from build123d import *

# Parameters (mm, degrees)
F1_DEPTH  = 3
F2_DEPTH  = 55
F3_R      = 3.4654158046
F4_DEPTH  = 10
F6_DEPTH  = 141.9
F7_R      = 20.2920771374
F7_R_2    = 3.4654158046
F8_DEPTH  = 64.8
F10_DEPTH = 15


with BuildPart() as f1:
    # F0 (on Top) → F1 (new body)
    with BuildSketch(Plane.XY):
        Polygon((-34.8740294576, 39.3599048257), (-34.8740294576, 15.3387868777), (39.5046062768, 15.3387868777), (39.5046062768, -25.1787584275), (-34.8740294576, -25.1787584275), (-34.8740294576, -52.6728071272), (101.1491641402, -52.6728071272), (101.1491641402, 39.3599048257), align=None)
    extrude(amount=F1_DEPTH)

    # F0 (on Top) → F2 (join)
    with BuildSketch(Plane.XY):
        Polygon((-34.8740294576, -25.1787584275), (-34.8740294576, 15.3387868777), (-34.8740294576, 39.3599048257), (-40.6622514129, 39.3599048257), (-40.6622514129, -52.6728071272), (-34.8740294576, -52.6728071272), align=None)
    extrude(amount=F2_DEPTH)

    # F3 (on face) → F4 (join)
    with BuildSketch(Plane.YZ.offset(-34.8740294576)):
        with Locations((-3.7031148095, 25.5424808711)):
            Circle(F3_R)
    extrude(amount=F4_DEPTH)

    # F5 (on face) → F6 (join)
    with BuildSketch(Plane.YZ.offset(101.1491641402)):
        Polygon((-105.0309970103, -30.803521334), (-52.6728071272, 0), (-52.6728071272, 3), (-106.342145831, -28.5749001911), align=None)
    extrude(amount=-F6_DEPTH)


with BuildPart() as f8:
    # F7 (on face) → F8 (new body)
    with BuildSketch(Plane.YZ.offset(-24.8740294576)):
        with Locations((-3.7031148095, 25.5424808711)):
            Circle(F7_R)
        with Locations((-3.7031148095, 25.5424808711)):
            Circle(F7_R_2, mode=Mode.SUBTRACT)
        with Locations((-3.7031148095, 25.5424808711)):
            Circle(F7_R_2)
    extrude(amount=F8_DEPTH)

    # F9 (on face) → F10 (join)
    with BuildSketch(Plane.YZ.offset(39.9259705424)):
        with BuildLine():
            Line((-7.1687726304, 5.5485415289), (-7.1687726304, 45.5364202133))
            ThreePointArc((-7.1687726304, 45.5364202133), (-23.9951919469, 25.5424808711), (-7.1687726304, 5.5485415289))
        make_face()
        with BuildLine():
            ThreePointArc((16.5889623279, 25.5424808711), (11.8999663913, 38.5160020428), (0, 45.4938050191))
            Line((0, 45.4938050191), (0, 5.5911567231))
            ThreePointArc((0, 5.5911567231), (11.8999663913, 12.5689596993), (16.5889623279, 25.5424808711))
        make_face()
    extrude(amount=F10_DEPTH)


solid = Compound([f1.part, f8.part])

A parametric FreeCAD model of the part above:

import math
import FreeCAD as App
import Part
import Sketcher
Q = App.Units.Quantity


def add_polygon(sketch, points):
    """Adds a closed chain of lines whose ends are joined by coincident constraints."""
    first, n = sketch.GeometryCount, len(points)
    for a, b in zip(points, points[1:] + points[:1]):
        sketch.addGeometry(Part.LineSegment(App.Vector(*a, 0), App.Vector(*b, 0)), False)
    for i in range(n):
        sketch.addConstraint(Sketcher.Constraint("Coincident", first + i, 2, first + (i + 1) % n, 1))

doc = App.newDocument("Part")
params = doc.addObject("Spreadsheet::Sheet", "Params")
for row, (alias, value) in enumerate([
    ("pad1_length", "3 mm"),
    ("pad2_length", "55 mm"),
    ("pad3_length", "10 mm"),
    ("sketch4_height", "3 mm"),
    ("pad4_length", "141.9 mm"),
    ("pad5_length", "64.8 mm"),
    ("pad6_length", "15 mm"),
], start=1):
    params.set(f"A{row}", alias)
    params.set(f"B{row}", "=" + value)
    params.setAlias(f"B{row}", alias)

body = doc.addObject("PartDesign::Body", "Body")

sketch1 = doc.addObject("Sketcher::SketchObject", "Sketch")
body.addObject(sketch1)
sketch1.AttachmentSupport = (doc.XY_Plane, [""])
sketch1.MapMode = "FlatFace"
add_polygon(sketch1, [(-35, 39), (-35, 15), (40, 15), (40, -25), (-35, -25), (-35, -53), (101, -53), (101, 39)])
sketch1.addConstraint([
    Sketcher.Constraint("Vertical", 0),
    Sketcher.Constraint("Horizontal", 1),
    Sketcher.Constraint("Vertical", 2),
    Sketcher.Constraint("Horizontal", 3),
    Sketcher.Constraint("Vertical", 4),
    Sketcher.Constraint("Horizontal", 5),
    Sketcher.Constraint("Vertical", 6),
    Sketcher.Constraint("Horizontal", 7),
    Sketcher.Constraint("Vertical", 0, 2, 3, 2),
    Sketcher.Constraint("DistanceY", 4, 2, 4, 1, Q("27.494049 mm")),
    Sketcher.Constraint("DistanceY", 6, 1, 6, 2, Q("92.032712 mm")),
    Sketcher.Constraint("DistanceX", 1, 1, 1, 2, Q("74.378636 mm")),
    Sketcher.Constraint("DistanceX", 5, 1, 5, 2, Q("136.023194 mm")),
    Sketcher.Constraint("DistanceY", 0, 2, 0, 1, Q("24.021118 mm")),
    Sketcher.Constraint("DistanceX", 0, 2, -1, 1, Q("34.874029 mm")),
    Sketcher.Constraint("DistanceY", 2, 2, -1, 1, Q("25.178758 mm")),
])
pad1 = doc.addObject("PartDesign::Pad", "Pad")
body.addObject(pad1)
pad1.Profile = sketch1
pad1.setExpression("Length", "Params.pad1_length")

sketch2 = doc.addObject("Sketcher::SketchObject", "Sketch001")
body.addObject(sketch2)
sketch2.AttachmentSupport = (doc.XY_Plane, [""])
sketch2.MapMode = "FlatFace"
add_polygon(sketch2, [(-35, 39), (-41, 39), (-41, -53), (-35, -53)])
sketch2.addConstraint([
    Sketcher.Constraint("Horizontal", 0),
    Sketcher.Constraint("Vertical", 1),
    Sketcher.Constraint("Horizontal", 2),
    Sketcher.Constraint("Vertical", 3),
    Sketcher.Constraint("DistanceX", 0, 2, 0, 1, Q("5.788222 mm")),
    Sketcher.Constraint("DistanceY", 1, 2, 1, 1, Q("92.032712 mm")),
    Sketcher.Constraint("DistanceX", 0, 2, -1, 1, Q("40.662251 mm")),
    Sketcher.Constraint("DistanceY", -1, 1, 0, 2, Q("39.359905 mm")),
])
pad2 = doc.addObject("PartDesign::Pad", "Pad001")
body.addObject(pad2)
pad2.Profile = sketch2
pad2.setExpression("Length", "Params.pad2_length")

sketch3 = doc.addObject("Sketcher::SketchObject", "Sketch002")
body.addObject(sketch3)
sketch3.AttachmentSupport = (doc.YZ_Plane, [""])
sketch3.MapMode = "FlatFace"
sketch3.AttachmentOffset = App.Placement(App.Vector(0, 0, -34.874029), App.Rotation())
sketch3.addGeometry(Part.Circle(App.Vector(-3.7, 25.5, 0), App.Vector(0, 0, 1), 3.5), False)
sketch3.addConstraint([
    Sketcher.Constraint("Diameter", 0, Q("6.930832 mm")),
    Sketcher.Constraint("DistanceY", -1, 1, 0, 3, Q("25.542481 mm")),
    Sketcher.Constraint("DistanceX", 0, 3, -1, 1, Q("3.703115 mm")),
])
pad3 = doc.addObject("PartDesign::Pad", "Pad002")
body.addObject(pad3)
pad3.Profile = sketch3
pad3.setExpression("Length", "Params.pad3_length")

sketch4 = doc.addObject("Sketcher::SketchObject", "Sketch003")
body.addObject(sketch4)
sketch4.AttachmentSupport = (doc.YZ_Plane, [""])
sketch4.MapMode = "FlatFace"
sketch4.AttachmentOffset = App.Placement(App.Vector(0, 0, 101.149164), App.Rotation())
add_polygon(sketch4, [(-105, -30.8), (-52.7, 0), (-52.7, 3), (-106.3, -28.6)])
sketch4.addConstraint([
    Sketcher.Constraint("Vertical", 1),
    Sketcher.Constraint("PointOnObject", 0, 2, -1),
    Sketcher.Constraint("Parallel", 0, 2),
    Sketcher.Constraint("Perpendicular", 2, 3),
    Sketcher.Constraint("DistanceY", 1, 1, 1, 2, Q("3 mm")),
    Sketcher.Constraint("DistanceY", 2, 2, -1, 1, Q("28.5749 mm")),
    Sketcher.Constraint("Distance", 0, Q("60.747321 mm")),
    Sketcher.Constraint("DistanceX", 0, 2, -1, 1, Q("52.672807 mm")),
])
sketch4.setExpression("Constraints[8]", "Params.sketch4_height")
pad4 = doc.addObject("PartDesign::Pad", "Pad003")
body.addObject(pad4)
pad4.Profile = sketch4
pad4.setExpression("Length", "Params.pad4_length")
pad4.Reversed = True
body2 = doc.addObject("PartDesign::Body", "Body001")

sketch5 = doc.addObject("Sketcher::SketchObject", "Sketch004")
body2.addObject(sketch5)
sketch5.AttachmentSupport = (doc.getObject("YZ_Plane001"), [""])
sketch5.MapMode = "FlatFace"
sketch5.AttachmentOffset = App.Placement(App.Vector(0, 0, -24.874029), App.Rotation())
sketch5.addGeometry(Part.Circle(App.Vector(-4, 26, 0), App.Vector(0, 0, 1), 20), False)
sketch5.addConstraint([
    Sketcher.Constraint("Diameter", 0, Q("40.584154 mm")),
    Sketcher.Constraint("DistanceY", -1, 1, 0, 3, Q("25.542481 mm")),
    Sketcher.Constraint("DistanceX", 0, 3, -1, 1, Q("3.703115 mm")),
])
pad5 = doc.addObject("PartDesign::Pad", "Pad004")
body2.addObject(pad5)
pad5.Profile = sketch5
pad5.setExpression("Length", "Params.pad5_length")

sketch6 = doc.addObject("Sketcher::SketchObject", "Sketch005")
body2.addObject(sketch6)
sketch6.AttachmentSupport = (doc.getObject("YZ_Plane001"), [""])
sketch6.MapMode = "FlatFace"
sketch6.AttachmentOffset = App.Placement(App.Vector(0, 0, 39.925971), App.Rotation())
sketch6.addGeometry([
    Part.LineSegment(App.Vector(-7, 6, 0), App.Vector(-7, 46, 0)),
    Part.ArcOfCircle(Part.Circle(App.Vector(-4, 26, 0), App.Vector(0, 0, 1), 20), math.radians(100), math.radians(260)),
    Part.ArcOfCircle(Part.Circle(App.Vector(-4, 26, 0), App.Vector(0, 0, 1), 20), math.radians(0), math.radians(79)),
    Part.LineSegment(App.Vector(0, 45, 0), App.Vector(0, 6, 0)),
    Part.ArcOfCircle(Part.Circle(App.Vector(-4, 26, 0), App.Vector(0, 0, 1), 20), math.radians(-79), math.radians(0)),
], False)
sketch6.addConstraint([
    Sketcher.Constraint("Coincident", 0, 1, 1, 2),
    Sketcher.Constraint("Coincident", 1, 1, 0, 2),
    Sketcher.Constraint("Coincident", 2, 2, 3, 1),
    Sketcher.Constraint("Coincident", 3, 2, 4, 1),
    Sketcher.Constraint("Tangent", 4, 2, 2, 1),
    Sketcher.Constraint("Vertical", 0),
    Sketcher.Constraint("Vertical", 3),
    Sketcher.Constraint("Coincident", 2, 3, 1, 3),
    Sketcher.Constraint("Equal", 1, 2),
    Sketcher.Constraint("Equal", 2, 4),
    Sketcher.Constraint("PointOnObject", 2, 2, -2),
    Sketcher.Constraint("Horizontal", 2, 3, 4, 2),
    Sketcher.Constraint("Radius", 1, Q("20.292077 mm")),
    Sketcher.Constraint("DistanceY", 0, 1, 0, 2, Q("39.987879 mm")),
    Sketcher.Constraint("DistanceY", 3, 2, 3, 1, Q("39.902648 mm")),
    Sketcher.Constraint("DistanceY", -1, 1, 1, 3, Q("25.542481 mm")),
])
pad6 = doc.addObject("PartDesign::Pad", "Pad005")
body2.addObject(pad6)
pad6.Profile = sketch6
pad6.setExpression("Length", "Params.pad6_length")

doc.recompute()
